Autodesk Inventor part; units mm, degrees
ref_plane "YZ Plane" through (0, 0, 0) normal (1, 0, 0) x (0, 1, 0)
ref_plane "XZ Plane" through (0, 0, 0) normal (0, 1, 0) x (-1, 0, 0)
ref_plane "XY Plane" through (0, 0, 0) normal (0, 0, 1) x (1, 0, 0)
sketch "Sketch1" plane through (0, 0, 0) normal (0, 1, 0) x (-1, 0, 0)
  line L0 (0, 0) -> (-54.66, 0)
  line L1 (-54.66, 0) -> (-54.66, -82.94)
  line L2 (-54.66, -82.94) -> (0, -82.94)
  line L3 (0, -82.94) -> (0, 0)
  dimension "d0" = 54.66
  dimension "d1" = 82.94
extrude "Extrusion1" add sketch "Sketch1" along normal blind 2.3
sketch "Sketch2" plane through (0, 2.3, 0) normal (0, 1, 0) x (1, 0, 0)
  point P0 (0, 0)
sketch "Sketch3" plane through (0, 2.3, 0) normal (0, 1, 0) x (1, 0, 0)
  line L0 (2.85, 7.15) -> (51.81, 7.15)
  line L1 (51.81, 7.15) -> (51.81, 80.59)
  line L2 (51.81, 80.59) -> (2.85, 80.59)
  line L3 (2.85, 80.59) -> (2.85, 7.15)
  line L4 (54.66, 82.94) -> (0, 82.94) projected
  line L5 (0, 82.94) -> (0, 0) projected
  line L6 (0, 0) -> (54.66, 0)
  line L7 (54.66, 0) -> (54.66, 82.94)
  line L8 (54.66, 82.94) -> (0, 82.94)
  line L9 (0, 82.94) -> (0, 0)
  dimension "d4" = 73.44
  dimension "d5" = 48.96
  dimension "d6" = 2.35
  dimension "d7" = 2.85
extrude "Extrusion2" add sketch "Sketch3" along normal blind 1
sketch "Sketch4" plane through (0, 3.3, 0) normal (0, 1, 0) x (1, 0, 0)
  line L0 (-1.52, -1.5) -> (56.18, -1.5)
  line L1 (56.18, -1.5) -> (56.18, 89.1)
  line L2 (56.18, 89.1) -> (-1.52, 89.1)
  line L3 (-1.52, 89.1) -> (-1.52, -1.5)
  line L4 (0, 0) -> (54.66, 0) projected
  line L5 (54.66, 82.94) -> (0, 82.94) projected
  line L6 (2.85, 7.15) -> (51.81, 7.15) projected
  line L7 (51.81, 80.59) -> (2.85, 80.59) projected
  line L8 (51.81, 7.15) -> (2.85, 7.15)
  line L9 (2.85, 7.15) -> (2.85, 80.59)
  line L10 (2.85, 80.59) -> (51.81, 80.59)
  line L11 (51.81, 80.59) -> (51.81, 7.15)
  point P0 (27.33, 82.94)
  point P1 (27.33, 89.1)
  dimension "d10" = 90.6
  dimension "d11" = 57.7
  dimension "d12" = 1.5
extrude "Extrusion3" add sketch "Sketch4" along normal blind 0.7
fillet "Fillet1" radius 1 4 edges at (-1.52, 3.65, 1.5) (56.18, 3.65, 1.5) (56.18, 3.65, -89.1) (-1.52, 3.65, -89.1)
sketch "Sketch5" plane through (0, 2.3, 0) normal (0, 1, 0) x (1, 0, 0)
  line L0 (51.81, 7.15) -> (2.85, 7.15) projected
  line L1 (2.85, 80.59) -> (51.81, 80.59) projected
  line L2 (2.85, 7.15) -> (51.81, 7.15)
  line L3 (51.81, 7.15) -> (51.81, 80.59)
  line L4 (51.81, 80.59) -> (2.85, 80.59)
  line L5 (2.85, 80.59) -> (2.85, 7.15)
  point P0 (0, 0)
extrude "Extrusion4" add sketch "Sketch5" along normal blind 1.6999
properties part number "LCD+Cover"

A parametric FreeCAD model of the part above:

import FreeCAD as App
import Part
import Sketcher
Q = App.Units.Quantity


def edges_at(feature, points):
    """Names of the edges that pass closest to the given points."""
    edges = feature.Shape.Edges
    near = lambda p: min(range(len(edges)), key=lambda i: edges[i].distToShape(Part.Vertex(*p))[0])
    return sorted({f"Edge{near(p) + 1}" for p in points})

doc = App.newDocument("Part")
body = doc.addObject("PartDesign::Body", "Body")

# Sketch on XZ plane
sketch1 = body.newObject("Sketcher::SketchObject", "Sketch")
sketch1.AttachmentSupport = (doc.getObject("XZ_Plane"), [""])
sketch1.MapMode = "FlatFace"
sketch1.addGeometry([
    Part.LineSegment(App.Vector(0, -83, 0), App.Vector(0, 0, 0)),
    Part.LineSegment(App.Vector(0, 0, 0), App.Vector(55, 0, 0)),
    Part.LineSegment(App.Vector(55, 0, 0), App.Vector(55, -83, 0)),
    Part.LineSegment(App.Vector(55, -83, 0), App.Vector(0, -83, 0)),
], False)
sketch1.addConstraint([
    Sketcher.Constraint("Coincident", 0, 2, 1, 1),
    Sketcher.Constraint("Coincident", 1, 2, 2, 1),
    Sketcher.Constraint("Coincident", 2, 2, 3, 1),
    Sketcher.Constraint("Coincident", 3, 2, 0, 1),
    Sketcher.Constraint("Vertical", 0),
    Sketcher.Constraint("Horizontal", 1),
    Sketcher.Constraint("Vertical", 2),
    Sketcher.Constraint("Horizontal", 3),
    Sketcher.Constraint("Coincident", 0, 2, -1, 1),
    Sketcher.Constraint("DistanceX", 1, 1, 1, 2, Q("54.66 mm")),
    Sketcher.Constraint("DistanceY", 0, 1, 0, 2, Q("82.94 mm")),
])
pad1 = body.newObject("PartDesign::Pad", "Pad")
pad1.Profile = sketch1
pad1.Length = 2.3
pad1.Reversed = True

# Sketch on XZ plane
sketch2 = body.newObject("Sketcher::SketchObject", "Sketch001")
sketch2.AttachmentSupport = (doc.getObject("XZ_Plane"), [""])
sketch2.MapMode = "FlatFace"
sketch2.AttachmentOffset = App.Placement(App.Vector(0, 0, -2.3), App.Rotation())
sketch2.addGeometry([
    Part.LineSegment(App.Vector(55, 0, 0), App.Vector(55, -83, 0)),  # 0
    Part.LineSegment(App.Vector(55, -83, 0), App.Vector(0, -83, 0)),  # 1
    Part.LineSegment(App.Vector(0, -83, 0), App.Vector(0, 0, 0)),  # 2
    Part.LineSegment(App.Vector(0, 0, 0), App.Vector(55, 0, 0)),  # 3
    Part.LineSegment(App.Vector(52, -7, 0), App.Vector(3, -7, 0)),  # 4
    Part.LineSegment(App.Vector(3, -7, 0), App.Vector(3, -81, 0)),  # 5
    Part.LineSegment(App.Vector(3, -81, 0), App.Vector(52, -81, 0)),  # 6
    Part.LineSegment(App.Vector(52, -81, 0), App.Vector(52, -7, 0)),  # 7
], False)
sketch2.addConstraint([
    Sketcher.Constraint("Coincident", 0, 2, 1, 1),
    Sketcher.Constraint("Coincident", 1, 2, 2, 1),
    Sketcher.Constraint("Coincident", 2, 2, 3, 1),
    Sketcher.Constraint("Coincident", 3, 2, 0, 1),
    Sketcher.Constraint("Coincident", 4, 2, 5, 1),
    Sketcher.Constraint("Coincident", 5, 2, 6, 1),
    Sketcher.Constraint("Coincident", 6, 2, 7, 1),
    Sketcher.Constraint("Coincident", 7, 2, 4, 1),
    Sketcher.Constraint("Vertical", 0),
    Sketcher.Constraint("Horizontal", 1),
    Sketcher.Constraint("Vertical", 2),
    Sketcher.Constraint("Horizontal", 3),
    Sketcher.Constraint("Horizontal", 4),
    Sketcher.Constraint("Vertical", 5),
    Sketcher.Constraint("Horizontal", 6),
    Sketcher.Constraint("Vertical", 7),
    Sketcher.Constraint("Coincident", 2, 2, -1, 1),
    Sketcher.Constraint("DistanceX", 4, 2, 4, 1, Q("48.96 mm")),
    Sketcher.Constraint("DistanceY", 5, 2, 5, 1, Q("73.44 mm")),
    Sketcher.Constraint("DistanceX", -1, 1, 4, 2, Q("2.85 mm")),
    Sketcher.Constraint("DistanceY", 1, 2, 5, 2, Q("2.35 mm")),
    Sketcher.Constraint("DistanceX", 6, 2, 0, 2, Q("2.85 mm")),
    Sketcher.Constraint("DistanceY", 0, 2, 0, 1, Q("82.94 mm")),
])
pad2 = body.newObject("PartDesign::Pad", "Pad001")
pad2.Profile = sketch2
pad2.Length = 1
pad2.Reversed = True

# Sketch on XZ plane
sketch3 = body.newObject("Sketcher::SketchObject", "Sketch002")
sketch3.AttachmentSupport = (doc.getObject("XZ_Plane"), [""])
sketch3.MapMode = "FlatFace"
sketch3.AttachmentOffset = App.Placement(App.Vector(0, 0, -3.3), App.Rotation())
sketch3.addGeometry([
    Part.LineSegment(App.Vector(-2, -89, 0), App.Vector(-2, 2, 0)),  # 0
    Part.LineSegment(App.Vector(-2, 2, 0), App.Vector(56, 2, 0)),  # 1
    Part.LineSegment(App.Vector(56, 2, 0), App.Vector(56, -89, 0)),  # 2
    Part.LineSegment(App.Vector(56, -89, 0), App.Vector(-2, -89, 0)),  # 3
    Part.LineSegment(App.Vector(52, -7, 0), App.Vector(3, -7, 0)),  # 4
    Part.LineSegment(App.Vector(3, -7, 0), App.Vector(3, -81, 0)),  # 5
    Part.LineSegment(App.Vector(3, -81, 0), App.Vector(52, -81, 0)),  # 6
    Part.LineSegment(App.Vector(52, -81, 0), App.Vector(52, -7, 0)),  # 7
], False)
sketch3.addConstraint([
    Sketcher.Constraint("Coincident", 0, 2, 1, 1),
    Sketcher.Constraint("Coincident", 1, 2, 2, 1),
    Sketcher.Constraint("Coincident", 2, 2, 3, 1),
    Sketcher.Constraint("Coincident", 3, 2, 0, 1),
    Sketcher.Constraint("Coincident", 4, 2, 5, 1),
    Sketcher.Constraint("Coincident", 5, 2, 6, 1),
    Sketcher.Constraint("Coincident", 6, 2, 7, 1),
    Sketcher.Constraint("Coincident", 7, 2, 4, 1),
    Sketcher.Constraint("Vertical", 0),
    Sketcher.Constraint("Horizontal", 1),
    Sketcher.Constraint("Vertical", 2),
    Sketcher.Constraint("Horizontal", 3),
    Sketcher.Constraint("Horizontal", 4),
    Sketcher.Constraint("Vertical", 5),
    Sketcher.Constraint("Horizontal", 6),
    Sketcher.Constraint("Vertical", 7),
    Sketcher.Constraint("DistanceX", 1, 1, 1, 2, Q("57.7 mm")),
    Sketcher.Constraint("DistanceY", 0, 1, 0, 2, Q("90.6 mm")),
    Sketcher.Constraint("DistanceY", -1, 1, 0, 2, Q("1.5 mm")),
    Sketcher.Constraint("DistanceX", 4, 2, 4, 1, Q("48.96 mm")),
    Sketcher.Constraint("DistanceY", 5, 2, 5, 1, Q("73.44 mm")),
    Sketcher.Constraint("DistanceX", 0, 2, -1, 1, Q("1.52 mm")),
    Sketcher.Constraint("DistanceX", -1, 1, 4, 2, Q("2.85 mm")),
    Sketcher.Constraint("DistanceY", 4, 2, -1, 1, Q("7.15 mm")),
])
pad3 = body.newObject("PartDesign::Pad", "Pad002")
pad3.Profile = sketch3
pad3.Length = 0.7
pad3.Reversed = True
doc.recompute()

fillet = body.newObject("PartDesign::Fillet", "Fillet")
fillet.Base = (pad3, edges_at(pad3, [
    (-1.52, 3.65, 1.5),
    (56.18, 3.65, 1.5),
    (56.18, 3.65, -89.1),
    (-1.52, 3.65, -89.1),
]))
fillet.Radius = 1

# Sketch on XZ plane
sketch4 = body.newObject("Sketcher::SketchObject", "Sketch003")
sketch4.AttachmentSupport = (doc.getObject("XZ_Plane"), [""])
sketch4.MapMode = "FlatFace"
sketch4.AttachmentOffset = App.Placement(App.Vector(0, 0, -2.3), App.Rotation())
sketch4.addGeometry([
    Part.LineSegment(App.Vector(3, -7, 0), App.Vector(52, -7, 0)),
    Part.LineSegment(App.Vector(52, -7, 0), App.Vector(52, -81, 0)),
    Part.LineSegment(App.Vector(52, -81, 0), App.Vector(3, -81, 0)),
    Part.LineSegment(App.Vector(3, -81, 0), App.Vector(3, -7, 0)),
], False)
sketch4.addConstraint([
    Sketcher.Constraint("Coincident", 0, 2, 1, 1),
    Sketcher.Constraint("Coincident", 1, 2, 2, 1),
    Sketcher.Constraint("Coincident", 2, 2, 3, 1),
    Sketcher.Constraint("Coincident", 3, 2, 0, 1),
    Sketcher.Constraint("Horizontal", 0),
    Sketcher.Constraint("Vertical", 1),
    Sketcher.Constraint("Horizontal", 2),
    Sketcher.Constraint("Vertical", 3),
    Sketcher.Constraint("DistanceX", 0, 1, 0, 2, Q("48.96 mm")),
    Sketcher.Constraint("DistanceY", 1, 2, 1, 1, Q("73.44 mm")),
    Sketcher.Constraint("DistanceX", -1, 1, 0, 2, Q("51.81 mm")),
    Sketcher.Constraint("DistanceY", 0, 2, -1, 1, Q("7.15 mm")),
])
pad4 = body.newObject("PartDesign::Pad", "Pad003")
pad4.Profile = sketch4
pad4.Length = 1.6999
pad4.Reversed = True

doc.recompute()
